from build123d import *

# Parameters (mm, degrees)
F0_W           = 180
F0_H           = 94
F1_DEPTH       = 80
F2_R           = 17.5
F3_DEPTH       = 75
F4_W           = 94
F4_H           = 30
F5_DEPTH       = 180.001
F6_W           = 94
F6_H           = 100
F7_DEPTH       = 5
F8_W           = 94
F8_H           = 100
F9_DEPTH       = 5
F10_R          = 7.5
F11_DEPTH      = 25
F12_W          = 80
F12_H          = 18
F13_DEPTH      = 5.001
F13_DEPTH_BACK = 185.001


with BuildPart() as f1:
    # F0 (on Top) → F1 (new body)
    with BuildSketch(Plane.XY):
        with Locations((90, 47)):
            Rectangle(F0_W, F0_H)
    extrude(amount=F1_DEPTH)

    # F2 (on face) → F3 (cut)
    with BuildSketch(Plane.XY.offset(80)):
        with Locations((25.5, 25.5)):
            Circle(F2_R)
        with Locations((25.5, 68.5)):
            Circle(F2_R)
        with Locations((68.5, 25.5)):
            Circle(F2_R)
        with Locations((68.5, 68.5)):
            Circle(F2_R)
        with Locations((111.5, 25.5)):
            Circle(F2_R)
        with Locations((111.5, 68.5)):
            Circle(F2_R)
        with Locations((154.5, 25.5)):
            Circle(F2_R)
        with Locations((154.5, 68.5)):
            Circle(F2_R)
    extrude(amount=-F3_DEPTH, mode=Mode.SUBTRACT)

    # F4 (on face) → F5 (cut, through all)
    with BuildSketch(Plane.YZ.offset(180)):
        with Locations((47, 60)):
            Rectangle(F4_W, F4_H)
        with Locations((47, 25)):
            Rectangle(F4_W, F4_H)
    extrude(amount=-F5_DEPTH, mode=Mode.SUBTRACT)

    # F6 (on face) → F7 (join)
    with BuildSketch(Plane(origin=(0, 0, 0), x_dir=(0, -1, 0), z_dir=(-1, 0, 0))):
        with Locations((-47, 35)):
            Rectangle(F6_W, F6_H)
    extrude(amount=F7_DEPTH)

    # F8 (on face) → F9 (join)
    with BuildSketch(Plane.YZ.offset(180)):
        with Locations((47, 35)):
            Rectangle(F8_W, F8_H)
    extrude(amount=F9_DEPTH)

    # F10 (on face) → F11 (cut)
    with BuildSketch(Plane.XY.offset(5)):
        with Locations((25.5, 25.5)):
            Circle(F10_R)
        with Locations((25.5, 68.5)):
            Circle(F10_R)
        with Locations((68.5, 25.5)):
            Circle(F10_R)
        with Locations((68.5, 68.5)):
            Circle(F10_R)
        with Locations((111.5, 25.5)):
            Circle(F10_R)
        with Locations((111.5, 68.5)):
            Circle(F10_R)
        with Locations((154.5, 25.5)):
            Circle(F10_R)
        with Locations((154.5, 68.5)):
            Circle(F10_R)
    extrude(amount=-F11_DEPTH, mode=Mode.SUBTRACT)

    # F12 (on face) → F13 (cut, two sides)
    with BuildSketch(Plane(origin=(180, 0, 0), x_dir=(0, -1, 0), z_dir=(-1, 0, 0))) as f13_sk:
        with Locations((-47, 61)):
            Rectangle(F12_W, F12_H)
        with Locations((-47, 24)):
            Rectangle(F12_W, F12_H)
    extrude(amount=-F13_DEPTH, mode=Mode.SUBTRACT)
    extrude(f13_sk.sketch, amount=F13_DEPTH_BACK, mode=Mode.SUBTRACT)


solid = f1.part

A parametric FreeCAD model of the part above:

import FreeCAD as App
import Part
import Sketcher

V = App.Vector
Q = App.Units.Quantity

doc = App.newDocument("Part")
body = doc.addObject("PartDesign::Body", "Body")
body.AllowCompound = True

# Sketch on XY plane
sketch1 = doc.addObject("Sketcher::SketchObject", "Sketch")
body.addObject(sketch1)
sketch1.AttachmentSupport = (doc.XY_Plane, [""])
sketch1.MapMode = "FlatFace"
sketch1.addGeometry([
    Part.LineSegment(V(0, 94, 0), V(0, 0, 0)),
    Part.LineSegment(V(0, 0, 0), V(180, 0, 0)),
    Part.LineSegment(V(180, 0, 0), V(180, 94, 0)),
    Part.LineSegment(V(180, 94, 0), V(0, 94, 0)),
], False)
sketch1.addConstraint([
    Sketcher.Constraint("Coincident", 0, 2, 1, 1),
    Sketcher.Constraint("Coincident", 1, 2, 2, 1),
    Sketcher.Constraint("Coincident", 2, 2, 3, 1),
    Sketcher.Constraint("Coincident", 3, 2, 0, 1),
    Sketcher.Constraint("Vertical", 0),
    Sketcher.Constraint("Horizontal", 1),
    Sketcher.Constraint("Vertical", 2),
    Sketcher.Constraint("Horizontal", 3),
    Sketcher.Constraint("Coincident", 0, 2, -1, 1),
    Sketcher.Constraint("DistanceX", 1, 1, 1, 2, Q("180 mm")),
    Sketcher.Constraint("DistanceY", 0, 2, 0, 1, Q("94 mm")),
])
pad1 = doc.addObject("PartDesign::Pad", "Pad")
body.addObject(pad1)
pad1.Profile = sketch1
pad1.Length = 80

# Sketch on XY plane
sketch2 = doc.addObject("Sketcher::SketchObject", "Sketch001")
body.addObject(sketch2)
sketch2.AttachmentSupport = (doc.XY_Plane, [""])
sketch2.MapMode = "FlatFace"
sketch2.AttachmentOffset = App.Placement(V(0, 0, 80), App.Rotation())
sketch2.addGeometry([
    Part.Circle(V(26, 26, 0), V(0, 0, 1), 18),  # 0
    Part.Circle(V(26, 68, 0), V(0, 0, 1), 18),  # 1
    Part.Circle(V(68, 26, 0), V(0, 0, 1), 18),  # 2
    Part.Circle(V(68, 68, 0), V(0, 0, 1), 18),  # 3
    Part.Circle(V(112, 26, 0), V(0, 0, 1), 18),  # 4
    Part.Circle(V(112, 68, 0), V(0, 0, 1), 18),  # 5
    Part.Circle(V(154, 26, 0), V(0, 0, 1), 18),  # 6
    Part.Circle(V(154, 68, 0), V(0, 0, 1), 18),  # 7
], False)
sketch2.addConstraint([
    Sketcher.Constraint("Equal", 0, 1),
    Sketcher.Constraint("Equal", 1, 2),
    Sketcher.Constraint("Equal", 2, 3),
    Sketcher.Constraint("Equal", 3, 4),
    Sketcher.Constraint("Equal", 4, 5),
    Sketcher.Constraint("Equal", 5, 6),
    Sketcher.Constraint("Equal", 6, 7),
    Sketcher.Constraint("Horizontal", 0, 3, 2, 3),
    Sketcher.Constraint("Horizontal", 1, 3, 3, 3),
    Sketcher.Constraint("Horizontal", 2, 3, 4, 3),
    Sketcher.Constraint("Horizontal", 3, 3, 5, 3),
    Sketcher.Constraint("Horizontal", 4, 3, 6, 3),
    Sketcher.Constraint("Horizontal", 5, 3, 7, 3),
    Sketcher.Constraint("Vertical", 0, 3, 1, 3),
    Sketcher.Constraint("Vertical", 2, 3, 3, 3),
    Sketcher.Constraint("Vertical", 4, 3, 5, 3),
    Sketcher.Constraint("Vertical", 6, 3, 7, 3),
    Sketcher.Constraint("Diameter", 0, Q("35 mm")),
    Sketcher.Constraint("DistanceY", 0, 3, 1, 3, Q("43 mm")),
    Sketcher.Constraint("DistanceX", 0, 3, 2, 3, Q("43 mm")),
    Sketcher.Constraint("DistanceX", 2, 3, 4, 3, Q("43 mm")),
    Sketcher.Constraint("DistanceX", 4, 3, 6, 3, Q("43 mm")),
    Sketcher.Constraint("DistanceX", -1, 1, 0, 3, Q("25.5 mm")),
    Sketcher.Constraint("DistanceY", -1, 1, 0, 3, Q("25.5 mm")),
])
pocket1 = doc.addObject("PartDesign::Pocket", "Pocket")
body.addObject(pocket1)
pocket1.Profile = sketch2
pocket1.Length = 75

# Sketch on YZ plane
sketch3 = doc.addObject("Sketcher::SketchObject", "Sketch002")
body.addObject(sketch3)
sketch3.AttachmentSupport = (doc.YZ_Plane, [""])
sketch3.MapMode = "FlatFace"
sketch3.AttachmentOffset = App.Placement(V(0, 0, 180), App.Rotation())
sketch3.addGeometry([
    Part.LineSegment(V(0, 75, 0), V(0, 45, 0)),  # 0
    Part.LineSegment(V(0, 45, 0), V(94, 45, 0)),  # 1
    Part.LineSegment(V(94, 45, 0), V(94, 75, 0)),  # 2
    Part.LineSegment(V(94, 75, 0), V(0, 75, 0)),  # 3
    Part.LineSegment(V(0, 40, 0), V(0, 10, 0)),  # 4
    Part.LineSegment(V(0, 10, 0), V(94, 10, 0)),  # 5
    Part.LineSegment(V(94, 10, 0), V(94, 40, 0)),  # 6
    Part.LineSegment(V(94, 40, 0), V(0, 40, 0)),  # 7
], False)
sketch3.addConstraint([
    Sketcher.Constraint("Coincident", 0, 2, 1, 1),
    Sketcher.Constraint("Coincident", 1, 2, 2, 1),
    Sketcher.Constraint("Coincident", 2, 2, 3, 1),
    Sketcher.Constraint("Coincident", 3, 2, 0, 1),
    Sketcher.Constraint("Coincident", 4, 2, 5, 1),
    Sketcher.Constraint("Coincident", 5, 2, 6, 1),
    Sketcher.Constraint("Coincident", 6, 2, 7, 1),
    Sketcher.Constraint("Coincident", 7, 2, 4, 1),
    Sketcher.Constraint("Vertical", 0),
    Sketcher.Constraint("Horizontal", 1),
    Sketcher.Constraint("Vertical", 2),
    Sketcher.Constraint("Horizontal", 3),
    Sketcher.Constraint("Vertical", 4),
    Sketcher.Constraint("Horizontal", 5),
    Sketcher.Constraint("Vertical", 6),
    Sketcher.Constraint("Horizontal", 7),
    Sketcher.Constraint("PointOnObject", 0, 2, -2),
    Sketcher.Constraint("PointOnObject", 4, 2, -2),
    Sketcher.Constraint("Vertical", 2, 2, 5, 2),
    Sketcher.Constraint("Equal", 2, 4),
    Sketcher.Constraint("DistanceX", 1, 1, 1, 2, Q("94 mm")),
    Sketcher.Constraint("DistanceY", 0, 2, 0, 1, Q("30 mm")),
    Sketcher.Constraint("DistanceY", -1, 1, 0, 2, Q("45 mm")),
    Sketcher.Constraint("DistanceY", -1, 1, 4, 2, Q("10 mm")),
])
pocket2 = doc.addObject("PartDesign::Pocket", "Pocket001")
body.addObject(pocket2)
pocket2.Profile = sketch3
pocket2.Type = "ThroughAll"

# Sketch on YZ plane
sketch4 = doc.addObject("Sketcher::SketchObject", "Sketch003")
body.addObject(sketch4)
sketch4.AttachmentSupport = (doc.YZ_Plane, [""])
sketch4.MapMode = "FlatFace"
sketch4.addGeometry([
    Part.LineSegment(V(94, 85, 0), V(94, -15, 0)),
    Part.LineSegment(V(94, -15, 0), V(0, -15, 0)),
    Part.LineSegment(V(0, -15, 0), V(0, 85, 0)),
    Part.LineSegment(V(0, 85, 0), V(94, 85, 0)),
], False)
sketch4.addConstraint([
    Sketcher.Constraint("Coincident", 0, 2, 1, 1),
    Sketcher.Constraint("Coincident", 1, 2, 2, 1),
    Sketcher.Constraint("Coincident", 2, 2, 3, 1),
    Sketcher.Constraint("Coincident", 3, 2, 0, 1),
    Sketcher.Constraint("Vertical", 0),
    Sketcher.Constraint("Horizontal", 1),
    Sketcher.Constraint("Vertical", 2),
    Sketcher.Constraint("Horizontal", 3),
    Sketcher.Constraint("PointOnObject", 1, 2, -2),
    Sketcher.Constraint("DistanceX", 1, 2, 1, 1, Q("94 mm")),
    Sketcher.Constraint("DistanceY", 0, 2, 0, 1, Q("100 mm")),
    Sketcher.Constraint("DistanceY", 0, 2, -1, 1, Q("15 mm")),
])
pad2 = doc.addObject("PartDesign::Pad", "Pad001")
body.addObject(pad2)
pad2.Profile = sketch4
pad2.Length = 5
pad2.Reversed = True

# Sketch on YZ plane
sketch5 = doc.addObject("Sketcher::SketchObject", "Sketch004")
body.addObject(sketch5)
sketch5.AttachmentSupport = (doc.YZ_Plane, [""])
sketch5.MapMode = "FlatFace"
sketch5.AttachmentOffset = App.Placement(V(0, 0, 180), App.Rotation())
sketch5.addGeometry([
    Part.LineSegment(V(0, 85, 0), V(0, -15, 0)),
    Part.LineSegment(V(0, -15, 0), V(94, -15, 0)),
    Part.LineSegment(V(94, -15, 0), V(94, 85, 0)),
    Part.LineSegment(V(94, 85, 0), V(0, 85, 0)),
], False)
sketch5.addConstraint([
    Sketcher.Constraint("Coincident", 0, 2, 1, 1),
    Sketcher.Constraint("Coincident", 1, 2, 2, 1),
    Sketcher.Constraint("Coincident", 2, 2, 3, 1),
    Sketcher.Constraint("Coincident", 3, 2, 0, 1),
    Sketcher.Constraint("Vertical", 0),
    Sketcher.Constraint("Horizontal", 1),
    Sketcher.Constraint("Vertical", 2),
    Sketcher.Constraint("Horizontal", 3),
    Sketcher.Constraint("PointOnObject", 0, 2, -2),
    Sketcher.Constraint("DistanceX", 1, 1, 1, 2, Q("94 mm")),
    Sketcher.Constraint("DistanceY", 0, 2, 0, 1, Q("100 mm")),
    Sketcher.Constraint("DistanceY", 0, 2, -1, 1, Q("15 mm")),
])
pad3 = doc.addObject("PartDesign::Pad", "Pad002")
body.addObject(pad3)
pad3.Profile = sketch5
pad3.Length = 5

# Sketch on XY plane
sketch6 = doc.addObject("Sketcher::SketchObject", "Sketch005")
body.addObject(sketch6)
sketch6.AttachmentSupport = (doc.XY_Plane, [""])
sketch6.MapMode = "FlatFace"
sketch6.AttachmentOffset = App.Placement(V(0, 0, 5), App.Rotation())
sketch6.addGeometry([
    Part.Circle(V(26, 26, 0), V(0, 0, 1), 8),  # 0
    Part.Circle(V(26, 68, 0), V(0, 0, 1), 8),  # 1
    Part.Circle(V(68, 26, 0), V(0, 0, 1), 8),  # 2
    Part.Circle(V(68, 68, 0), V(0, 0, 1), 8),  # 3
    Part.Circle(V(112, 26, 0), V(0, 0, 1), 8),  # 4
    Part.Circle(V(112, 68, 0), V(0, 0, 1), 8),  # 5
    Part.Circle(V(154, 26, 0), V(0, 0, 1), 8),  # 6
    Part.Circle(V(154, 68, 0), V(0, 0, 1), 8),  # 7
], False)
sketch6.addConstraint([
    Sketcher.Constraint("Equal", 0, 1),
    Sketcher.Constraint("Equal", 1, 2),
    Sketcher.Constraint("Equal", 2, 3),
    Sketcher.Constraint("Equal", 3, 4),
    Sketcher.Constraint("Equal", 4, 5),
    Sketcher.Constraint("Equal", 5, 6),
    Sketcher.Constraint("Equal", 6, 7),
    Sketcher.Constraint("Horizontal", 0, 3, 2, 3),
    Sketcher.Constraint("Horizontal", 1, 3, 3, 3),
    Sketcher.Constraint("Horizontal", 2, 3, 4, 3),
    Sketcher.Constraint("Horizontal", 3, 3, 5, 3),
    Sketcher.Constraint("Horizontal", 4, 3, 6, 3),
    Sketcher.Constraint("Horizontal", 5, 3, 7, 3),
    Sketcher.Constraint("Vertical", 0, 3, 1, 3),
    Sketcher.Constraint("Vertical", 2, 3, 3, 3),
    Sketcher.Constraint("Vertical", 4, 3, 5, 3),
    Sketcher.Constraint("Vertical", 6, 3, 7, 3),
    Sketcher.Constraint("Diameter", 0, Q("15 mm")),
    Sketcher.Constraint("DistanceY", 0, 3, 1, 3, Q("43 mm")),
    Sketcher.Constraint("DistanceX", 0, 3, 2, 3, Q("43 mm")),
    Sketcher.Constraint("DistanceX", 2, 3, 4, 3, Q("43 mm")),
    Sketcher.Constraint("DistanceX", 4, 3, 6, 3, Q("43 mm")),
    Sketcher.Constraint("DistanceX", -1, 1, 0, 3, Q("25.5 mm")),
    Sketcher.Constraint("DistanceY", -1, 1, 0, 3, Q("25.5 mm")),
])
pocket3 = doc.addObject("PartDesign::Pocket", "Pocket002")
body.addObject(pocket3)
pocket3.Profile = sketch6
pocket3.Length = 25

# Sketch on YZ plane
sketch7 = doc.addObject("Sketcher::SketchObject", "Sketch006")
body.addObject(sketch7)
sketch7.AttachmentSupport = (doc.YZ_Plane, [""])
sketch7.MapMode = "FlatFace"
sketch7.AttachmentOffset = App.Placement(V(0, 0, 180), App.Rotation())
sketch7.addGeometry([
    Part.LineSegment(V(87, 70, 0), V(87, 52, 0)),  # 0
    Part.LineSegment(V(87, 52, 0), V(7, 52, 0)),  # 1
    Part.LineSegment(V(7, 52, 0), V(7, 70, 0)),  # 2
    Part.LineSegment(V(7, 70, 0), V(87, 70, 0)),  # 3
    Part.LineSegment(V(87, 33, 0), V(87, 15, 0)),  # 4
    Part.LineSegment(V(87, 15, 0), V(7, 15, 0)),  # 5
    Part.LineSegment(V(7, 15, 0), V(7, 33, 0)),  # 6
    Part.LineSegment(V(7, 33, 0), V(87, 33, 0)),  # 7
], False)
sketch7.addConstraint([
    Sketcher.Constraint("Coincident", 0, 2, 1, 1),
    Sketcher.Constraint("Coincident", 1, 2, 2, 1),
    Sketcher.Constraint("Coincident", 2, 2, 3, 1),
    Sketcher.Constraint("Coincident", 3, 2, 0, 1),
    Sketcher.Constraint("Coincident", 4, 2, 5, 1),
    Sketcher.Constraint("Coincident", 5, 2, 6, 1),
    Sketcher.Constraint("Coincident", 6, 2, 7, 1),
    Sketcher.Constraint("Coincident", 7, 2, 4, 1),
    Sketcher.Constraint("Vertical", 0),
    Sketcher.Constraint("Horizontal", 1),
    Sketcher.Constraint("Vertical", 2),
    Sketcher.Constraint("Horizontal", 3),
    Sketcher.Constraint("Vertical", 4),
    Sketcher.Constraint("Horizontal", 5),
    Sketcher.Constraint("Vertical", 6),
    Sketcher.Constraint("Horizontal", 7),
    Sketcher.Constraint("Vertical", 3, 2, 4, 2),
    Sketcher.Constraint("Vertical", 2, 2, 5, 2),
    Sketcher.Constraint("Equal", 2, 4),
    Sketcher.Constraint("DistanceX", 1, 2, 1, 1, Q("80 mm")),
    Sketcher.Constraint("DistanceY", 0, 2, 0, 1, Q("18 mm")),
    Sketcher.Constraint("DistanceX", -1, 1, 0, 2, Q("87 mm")),
    Sketcher.Constraint("DistanceY", -1, 1, 0, 2, Q("52 mm")),
    Sketcher.Constraint("DistanceY", -1, 1, 4, 2, Q("15 mm")),
])
pocket4 = doc.addObject("PartDesign::Pocket", "Pocket003")
body.addObject(pocket4)
pocket4.Profile = sketch7
pocket4.Type = "ThroughAll"
pocket4.Midplane = True

doc.recompute()
